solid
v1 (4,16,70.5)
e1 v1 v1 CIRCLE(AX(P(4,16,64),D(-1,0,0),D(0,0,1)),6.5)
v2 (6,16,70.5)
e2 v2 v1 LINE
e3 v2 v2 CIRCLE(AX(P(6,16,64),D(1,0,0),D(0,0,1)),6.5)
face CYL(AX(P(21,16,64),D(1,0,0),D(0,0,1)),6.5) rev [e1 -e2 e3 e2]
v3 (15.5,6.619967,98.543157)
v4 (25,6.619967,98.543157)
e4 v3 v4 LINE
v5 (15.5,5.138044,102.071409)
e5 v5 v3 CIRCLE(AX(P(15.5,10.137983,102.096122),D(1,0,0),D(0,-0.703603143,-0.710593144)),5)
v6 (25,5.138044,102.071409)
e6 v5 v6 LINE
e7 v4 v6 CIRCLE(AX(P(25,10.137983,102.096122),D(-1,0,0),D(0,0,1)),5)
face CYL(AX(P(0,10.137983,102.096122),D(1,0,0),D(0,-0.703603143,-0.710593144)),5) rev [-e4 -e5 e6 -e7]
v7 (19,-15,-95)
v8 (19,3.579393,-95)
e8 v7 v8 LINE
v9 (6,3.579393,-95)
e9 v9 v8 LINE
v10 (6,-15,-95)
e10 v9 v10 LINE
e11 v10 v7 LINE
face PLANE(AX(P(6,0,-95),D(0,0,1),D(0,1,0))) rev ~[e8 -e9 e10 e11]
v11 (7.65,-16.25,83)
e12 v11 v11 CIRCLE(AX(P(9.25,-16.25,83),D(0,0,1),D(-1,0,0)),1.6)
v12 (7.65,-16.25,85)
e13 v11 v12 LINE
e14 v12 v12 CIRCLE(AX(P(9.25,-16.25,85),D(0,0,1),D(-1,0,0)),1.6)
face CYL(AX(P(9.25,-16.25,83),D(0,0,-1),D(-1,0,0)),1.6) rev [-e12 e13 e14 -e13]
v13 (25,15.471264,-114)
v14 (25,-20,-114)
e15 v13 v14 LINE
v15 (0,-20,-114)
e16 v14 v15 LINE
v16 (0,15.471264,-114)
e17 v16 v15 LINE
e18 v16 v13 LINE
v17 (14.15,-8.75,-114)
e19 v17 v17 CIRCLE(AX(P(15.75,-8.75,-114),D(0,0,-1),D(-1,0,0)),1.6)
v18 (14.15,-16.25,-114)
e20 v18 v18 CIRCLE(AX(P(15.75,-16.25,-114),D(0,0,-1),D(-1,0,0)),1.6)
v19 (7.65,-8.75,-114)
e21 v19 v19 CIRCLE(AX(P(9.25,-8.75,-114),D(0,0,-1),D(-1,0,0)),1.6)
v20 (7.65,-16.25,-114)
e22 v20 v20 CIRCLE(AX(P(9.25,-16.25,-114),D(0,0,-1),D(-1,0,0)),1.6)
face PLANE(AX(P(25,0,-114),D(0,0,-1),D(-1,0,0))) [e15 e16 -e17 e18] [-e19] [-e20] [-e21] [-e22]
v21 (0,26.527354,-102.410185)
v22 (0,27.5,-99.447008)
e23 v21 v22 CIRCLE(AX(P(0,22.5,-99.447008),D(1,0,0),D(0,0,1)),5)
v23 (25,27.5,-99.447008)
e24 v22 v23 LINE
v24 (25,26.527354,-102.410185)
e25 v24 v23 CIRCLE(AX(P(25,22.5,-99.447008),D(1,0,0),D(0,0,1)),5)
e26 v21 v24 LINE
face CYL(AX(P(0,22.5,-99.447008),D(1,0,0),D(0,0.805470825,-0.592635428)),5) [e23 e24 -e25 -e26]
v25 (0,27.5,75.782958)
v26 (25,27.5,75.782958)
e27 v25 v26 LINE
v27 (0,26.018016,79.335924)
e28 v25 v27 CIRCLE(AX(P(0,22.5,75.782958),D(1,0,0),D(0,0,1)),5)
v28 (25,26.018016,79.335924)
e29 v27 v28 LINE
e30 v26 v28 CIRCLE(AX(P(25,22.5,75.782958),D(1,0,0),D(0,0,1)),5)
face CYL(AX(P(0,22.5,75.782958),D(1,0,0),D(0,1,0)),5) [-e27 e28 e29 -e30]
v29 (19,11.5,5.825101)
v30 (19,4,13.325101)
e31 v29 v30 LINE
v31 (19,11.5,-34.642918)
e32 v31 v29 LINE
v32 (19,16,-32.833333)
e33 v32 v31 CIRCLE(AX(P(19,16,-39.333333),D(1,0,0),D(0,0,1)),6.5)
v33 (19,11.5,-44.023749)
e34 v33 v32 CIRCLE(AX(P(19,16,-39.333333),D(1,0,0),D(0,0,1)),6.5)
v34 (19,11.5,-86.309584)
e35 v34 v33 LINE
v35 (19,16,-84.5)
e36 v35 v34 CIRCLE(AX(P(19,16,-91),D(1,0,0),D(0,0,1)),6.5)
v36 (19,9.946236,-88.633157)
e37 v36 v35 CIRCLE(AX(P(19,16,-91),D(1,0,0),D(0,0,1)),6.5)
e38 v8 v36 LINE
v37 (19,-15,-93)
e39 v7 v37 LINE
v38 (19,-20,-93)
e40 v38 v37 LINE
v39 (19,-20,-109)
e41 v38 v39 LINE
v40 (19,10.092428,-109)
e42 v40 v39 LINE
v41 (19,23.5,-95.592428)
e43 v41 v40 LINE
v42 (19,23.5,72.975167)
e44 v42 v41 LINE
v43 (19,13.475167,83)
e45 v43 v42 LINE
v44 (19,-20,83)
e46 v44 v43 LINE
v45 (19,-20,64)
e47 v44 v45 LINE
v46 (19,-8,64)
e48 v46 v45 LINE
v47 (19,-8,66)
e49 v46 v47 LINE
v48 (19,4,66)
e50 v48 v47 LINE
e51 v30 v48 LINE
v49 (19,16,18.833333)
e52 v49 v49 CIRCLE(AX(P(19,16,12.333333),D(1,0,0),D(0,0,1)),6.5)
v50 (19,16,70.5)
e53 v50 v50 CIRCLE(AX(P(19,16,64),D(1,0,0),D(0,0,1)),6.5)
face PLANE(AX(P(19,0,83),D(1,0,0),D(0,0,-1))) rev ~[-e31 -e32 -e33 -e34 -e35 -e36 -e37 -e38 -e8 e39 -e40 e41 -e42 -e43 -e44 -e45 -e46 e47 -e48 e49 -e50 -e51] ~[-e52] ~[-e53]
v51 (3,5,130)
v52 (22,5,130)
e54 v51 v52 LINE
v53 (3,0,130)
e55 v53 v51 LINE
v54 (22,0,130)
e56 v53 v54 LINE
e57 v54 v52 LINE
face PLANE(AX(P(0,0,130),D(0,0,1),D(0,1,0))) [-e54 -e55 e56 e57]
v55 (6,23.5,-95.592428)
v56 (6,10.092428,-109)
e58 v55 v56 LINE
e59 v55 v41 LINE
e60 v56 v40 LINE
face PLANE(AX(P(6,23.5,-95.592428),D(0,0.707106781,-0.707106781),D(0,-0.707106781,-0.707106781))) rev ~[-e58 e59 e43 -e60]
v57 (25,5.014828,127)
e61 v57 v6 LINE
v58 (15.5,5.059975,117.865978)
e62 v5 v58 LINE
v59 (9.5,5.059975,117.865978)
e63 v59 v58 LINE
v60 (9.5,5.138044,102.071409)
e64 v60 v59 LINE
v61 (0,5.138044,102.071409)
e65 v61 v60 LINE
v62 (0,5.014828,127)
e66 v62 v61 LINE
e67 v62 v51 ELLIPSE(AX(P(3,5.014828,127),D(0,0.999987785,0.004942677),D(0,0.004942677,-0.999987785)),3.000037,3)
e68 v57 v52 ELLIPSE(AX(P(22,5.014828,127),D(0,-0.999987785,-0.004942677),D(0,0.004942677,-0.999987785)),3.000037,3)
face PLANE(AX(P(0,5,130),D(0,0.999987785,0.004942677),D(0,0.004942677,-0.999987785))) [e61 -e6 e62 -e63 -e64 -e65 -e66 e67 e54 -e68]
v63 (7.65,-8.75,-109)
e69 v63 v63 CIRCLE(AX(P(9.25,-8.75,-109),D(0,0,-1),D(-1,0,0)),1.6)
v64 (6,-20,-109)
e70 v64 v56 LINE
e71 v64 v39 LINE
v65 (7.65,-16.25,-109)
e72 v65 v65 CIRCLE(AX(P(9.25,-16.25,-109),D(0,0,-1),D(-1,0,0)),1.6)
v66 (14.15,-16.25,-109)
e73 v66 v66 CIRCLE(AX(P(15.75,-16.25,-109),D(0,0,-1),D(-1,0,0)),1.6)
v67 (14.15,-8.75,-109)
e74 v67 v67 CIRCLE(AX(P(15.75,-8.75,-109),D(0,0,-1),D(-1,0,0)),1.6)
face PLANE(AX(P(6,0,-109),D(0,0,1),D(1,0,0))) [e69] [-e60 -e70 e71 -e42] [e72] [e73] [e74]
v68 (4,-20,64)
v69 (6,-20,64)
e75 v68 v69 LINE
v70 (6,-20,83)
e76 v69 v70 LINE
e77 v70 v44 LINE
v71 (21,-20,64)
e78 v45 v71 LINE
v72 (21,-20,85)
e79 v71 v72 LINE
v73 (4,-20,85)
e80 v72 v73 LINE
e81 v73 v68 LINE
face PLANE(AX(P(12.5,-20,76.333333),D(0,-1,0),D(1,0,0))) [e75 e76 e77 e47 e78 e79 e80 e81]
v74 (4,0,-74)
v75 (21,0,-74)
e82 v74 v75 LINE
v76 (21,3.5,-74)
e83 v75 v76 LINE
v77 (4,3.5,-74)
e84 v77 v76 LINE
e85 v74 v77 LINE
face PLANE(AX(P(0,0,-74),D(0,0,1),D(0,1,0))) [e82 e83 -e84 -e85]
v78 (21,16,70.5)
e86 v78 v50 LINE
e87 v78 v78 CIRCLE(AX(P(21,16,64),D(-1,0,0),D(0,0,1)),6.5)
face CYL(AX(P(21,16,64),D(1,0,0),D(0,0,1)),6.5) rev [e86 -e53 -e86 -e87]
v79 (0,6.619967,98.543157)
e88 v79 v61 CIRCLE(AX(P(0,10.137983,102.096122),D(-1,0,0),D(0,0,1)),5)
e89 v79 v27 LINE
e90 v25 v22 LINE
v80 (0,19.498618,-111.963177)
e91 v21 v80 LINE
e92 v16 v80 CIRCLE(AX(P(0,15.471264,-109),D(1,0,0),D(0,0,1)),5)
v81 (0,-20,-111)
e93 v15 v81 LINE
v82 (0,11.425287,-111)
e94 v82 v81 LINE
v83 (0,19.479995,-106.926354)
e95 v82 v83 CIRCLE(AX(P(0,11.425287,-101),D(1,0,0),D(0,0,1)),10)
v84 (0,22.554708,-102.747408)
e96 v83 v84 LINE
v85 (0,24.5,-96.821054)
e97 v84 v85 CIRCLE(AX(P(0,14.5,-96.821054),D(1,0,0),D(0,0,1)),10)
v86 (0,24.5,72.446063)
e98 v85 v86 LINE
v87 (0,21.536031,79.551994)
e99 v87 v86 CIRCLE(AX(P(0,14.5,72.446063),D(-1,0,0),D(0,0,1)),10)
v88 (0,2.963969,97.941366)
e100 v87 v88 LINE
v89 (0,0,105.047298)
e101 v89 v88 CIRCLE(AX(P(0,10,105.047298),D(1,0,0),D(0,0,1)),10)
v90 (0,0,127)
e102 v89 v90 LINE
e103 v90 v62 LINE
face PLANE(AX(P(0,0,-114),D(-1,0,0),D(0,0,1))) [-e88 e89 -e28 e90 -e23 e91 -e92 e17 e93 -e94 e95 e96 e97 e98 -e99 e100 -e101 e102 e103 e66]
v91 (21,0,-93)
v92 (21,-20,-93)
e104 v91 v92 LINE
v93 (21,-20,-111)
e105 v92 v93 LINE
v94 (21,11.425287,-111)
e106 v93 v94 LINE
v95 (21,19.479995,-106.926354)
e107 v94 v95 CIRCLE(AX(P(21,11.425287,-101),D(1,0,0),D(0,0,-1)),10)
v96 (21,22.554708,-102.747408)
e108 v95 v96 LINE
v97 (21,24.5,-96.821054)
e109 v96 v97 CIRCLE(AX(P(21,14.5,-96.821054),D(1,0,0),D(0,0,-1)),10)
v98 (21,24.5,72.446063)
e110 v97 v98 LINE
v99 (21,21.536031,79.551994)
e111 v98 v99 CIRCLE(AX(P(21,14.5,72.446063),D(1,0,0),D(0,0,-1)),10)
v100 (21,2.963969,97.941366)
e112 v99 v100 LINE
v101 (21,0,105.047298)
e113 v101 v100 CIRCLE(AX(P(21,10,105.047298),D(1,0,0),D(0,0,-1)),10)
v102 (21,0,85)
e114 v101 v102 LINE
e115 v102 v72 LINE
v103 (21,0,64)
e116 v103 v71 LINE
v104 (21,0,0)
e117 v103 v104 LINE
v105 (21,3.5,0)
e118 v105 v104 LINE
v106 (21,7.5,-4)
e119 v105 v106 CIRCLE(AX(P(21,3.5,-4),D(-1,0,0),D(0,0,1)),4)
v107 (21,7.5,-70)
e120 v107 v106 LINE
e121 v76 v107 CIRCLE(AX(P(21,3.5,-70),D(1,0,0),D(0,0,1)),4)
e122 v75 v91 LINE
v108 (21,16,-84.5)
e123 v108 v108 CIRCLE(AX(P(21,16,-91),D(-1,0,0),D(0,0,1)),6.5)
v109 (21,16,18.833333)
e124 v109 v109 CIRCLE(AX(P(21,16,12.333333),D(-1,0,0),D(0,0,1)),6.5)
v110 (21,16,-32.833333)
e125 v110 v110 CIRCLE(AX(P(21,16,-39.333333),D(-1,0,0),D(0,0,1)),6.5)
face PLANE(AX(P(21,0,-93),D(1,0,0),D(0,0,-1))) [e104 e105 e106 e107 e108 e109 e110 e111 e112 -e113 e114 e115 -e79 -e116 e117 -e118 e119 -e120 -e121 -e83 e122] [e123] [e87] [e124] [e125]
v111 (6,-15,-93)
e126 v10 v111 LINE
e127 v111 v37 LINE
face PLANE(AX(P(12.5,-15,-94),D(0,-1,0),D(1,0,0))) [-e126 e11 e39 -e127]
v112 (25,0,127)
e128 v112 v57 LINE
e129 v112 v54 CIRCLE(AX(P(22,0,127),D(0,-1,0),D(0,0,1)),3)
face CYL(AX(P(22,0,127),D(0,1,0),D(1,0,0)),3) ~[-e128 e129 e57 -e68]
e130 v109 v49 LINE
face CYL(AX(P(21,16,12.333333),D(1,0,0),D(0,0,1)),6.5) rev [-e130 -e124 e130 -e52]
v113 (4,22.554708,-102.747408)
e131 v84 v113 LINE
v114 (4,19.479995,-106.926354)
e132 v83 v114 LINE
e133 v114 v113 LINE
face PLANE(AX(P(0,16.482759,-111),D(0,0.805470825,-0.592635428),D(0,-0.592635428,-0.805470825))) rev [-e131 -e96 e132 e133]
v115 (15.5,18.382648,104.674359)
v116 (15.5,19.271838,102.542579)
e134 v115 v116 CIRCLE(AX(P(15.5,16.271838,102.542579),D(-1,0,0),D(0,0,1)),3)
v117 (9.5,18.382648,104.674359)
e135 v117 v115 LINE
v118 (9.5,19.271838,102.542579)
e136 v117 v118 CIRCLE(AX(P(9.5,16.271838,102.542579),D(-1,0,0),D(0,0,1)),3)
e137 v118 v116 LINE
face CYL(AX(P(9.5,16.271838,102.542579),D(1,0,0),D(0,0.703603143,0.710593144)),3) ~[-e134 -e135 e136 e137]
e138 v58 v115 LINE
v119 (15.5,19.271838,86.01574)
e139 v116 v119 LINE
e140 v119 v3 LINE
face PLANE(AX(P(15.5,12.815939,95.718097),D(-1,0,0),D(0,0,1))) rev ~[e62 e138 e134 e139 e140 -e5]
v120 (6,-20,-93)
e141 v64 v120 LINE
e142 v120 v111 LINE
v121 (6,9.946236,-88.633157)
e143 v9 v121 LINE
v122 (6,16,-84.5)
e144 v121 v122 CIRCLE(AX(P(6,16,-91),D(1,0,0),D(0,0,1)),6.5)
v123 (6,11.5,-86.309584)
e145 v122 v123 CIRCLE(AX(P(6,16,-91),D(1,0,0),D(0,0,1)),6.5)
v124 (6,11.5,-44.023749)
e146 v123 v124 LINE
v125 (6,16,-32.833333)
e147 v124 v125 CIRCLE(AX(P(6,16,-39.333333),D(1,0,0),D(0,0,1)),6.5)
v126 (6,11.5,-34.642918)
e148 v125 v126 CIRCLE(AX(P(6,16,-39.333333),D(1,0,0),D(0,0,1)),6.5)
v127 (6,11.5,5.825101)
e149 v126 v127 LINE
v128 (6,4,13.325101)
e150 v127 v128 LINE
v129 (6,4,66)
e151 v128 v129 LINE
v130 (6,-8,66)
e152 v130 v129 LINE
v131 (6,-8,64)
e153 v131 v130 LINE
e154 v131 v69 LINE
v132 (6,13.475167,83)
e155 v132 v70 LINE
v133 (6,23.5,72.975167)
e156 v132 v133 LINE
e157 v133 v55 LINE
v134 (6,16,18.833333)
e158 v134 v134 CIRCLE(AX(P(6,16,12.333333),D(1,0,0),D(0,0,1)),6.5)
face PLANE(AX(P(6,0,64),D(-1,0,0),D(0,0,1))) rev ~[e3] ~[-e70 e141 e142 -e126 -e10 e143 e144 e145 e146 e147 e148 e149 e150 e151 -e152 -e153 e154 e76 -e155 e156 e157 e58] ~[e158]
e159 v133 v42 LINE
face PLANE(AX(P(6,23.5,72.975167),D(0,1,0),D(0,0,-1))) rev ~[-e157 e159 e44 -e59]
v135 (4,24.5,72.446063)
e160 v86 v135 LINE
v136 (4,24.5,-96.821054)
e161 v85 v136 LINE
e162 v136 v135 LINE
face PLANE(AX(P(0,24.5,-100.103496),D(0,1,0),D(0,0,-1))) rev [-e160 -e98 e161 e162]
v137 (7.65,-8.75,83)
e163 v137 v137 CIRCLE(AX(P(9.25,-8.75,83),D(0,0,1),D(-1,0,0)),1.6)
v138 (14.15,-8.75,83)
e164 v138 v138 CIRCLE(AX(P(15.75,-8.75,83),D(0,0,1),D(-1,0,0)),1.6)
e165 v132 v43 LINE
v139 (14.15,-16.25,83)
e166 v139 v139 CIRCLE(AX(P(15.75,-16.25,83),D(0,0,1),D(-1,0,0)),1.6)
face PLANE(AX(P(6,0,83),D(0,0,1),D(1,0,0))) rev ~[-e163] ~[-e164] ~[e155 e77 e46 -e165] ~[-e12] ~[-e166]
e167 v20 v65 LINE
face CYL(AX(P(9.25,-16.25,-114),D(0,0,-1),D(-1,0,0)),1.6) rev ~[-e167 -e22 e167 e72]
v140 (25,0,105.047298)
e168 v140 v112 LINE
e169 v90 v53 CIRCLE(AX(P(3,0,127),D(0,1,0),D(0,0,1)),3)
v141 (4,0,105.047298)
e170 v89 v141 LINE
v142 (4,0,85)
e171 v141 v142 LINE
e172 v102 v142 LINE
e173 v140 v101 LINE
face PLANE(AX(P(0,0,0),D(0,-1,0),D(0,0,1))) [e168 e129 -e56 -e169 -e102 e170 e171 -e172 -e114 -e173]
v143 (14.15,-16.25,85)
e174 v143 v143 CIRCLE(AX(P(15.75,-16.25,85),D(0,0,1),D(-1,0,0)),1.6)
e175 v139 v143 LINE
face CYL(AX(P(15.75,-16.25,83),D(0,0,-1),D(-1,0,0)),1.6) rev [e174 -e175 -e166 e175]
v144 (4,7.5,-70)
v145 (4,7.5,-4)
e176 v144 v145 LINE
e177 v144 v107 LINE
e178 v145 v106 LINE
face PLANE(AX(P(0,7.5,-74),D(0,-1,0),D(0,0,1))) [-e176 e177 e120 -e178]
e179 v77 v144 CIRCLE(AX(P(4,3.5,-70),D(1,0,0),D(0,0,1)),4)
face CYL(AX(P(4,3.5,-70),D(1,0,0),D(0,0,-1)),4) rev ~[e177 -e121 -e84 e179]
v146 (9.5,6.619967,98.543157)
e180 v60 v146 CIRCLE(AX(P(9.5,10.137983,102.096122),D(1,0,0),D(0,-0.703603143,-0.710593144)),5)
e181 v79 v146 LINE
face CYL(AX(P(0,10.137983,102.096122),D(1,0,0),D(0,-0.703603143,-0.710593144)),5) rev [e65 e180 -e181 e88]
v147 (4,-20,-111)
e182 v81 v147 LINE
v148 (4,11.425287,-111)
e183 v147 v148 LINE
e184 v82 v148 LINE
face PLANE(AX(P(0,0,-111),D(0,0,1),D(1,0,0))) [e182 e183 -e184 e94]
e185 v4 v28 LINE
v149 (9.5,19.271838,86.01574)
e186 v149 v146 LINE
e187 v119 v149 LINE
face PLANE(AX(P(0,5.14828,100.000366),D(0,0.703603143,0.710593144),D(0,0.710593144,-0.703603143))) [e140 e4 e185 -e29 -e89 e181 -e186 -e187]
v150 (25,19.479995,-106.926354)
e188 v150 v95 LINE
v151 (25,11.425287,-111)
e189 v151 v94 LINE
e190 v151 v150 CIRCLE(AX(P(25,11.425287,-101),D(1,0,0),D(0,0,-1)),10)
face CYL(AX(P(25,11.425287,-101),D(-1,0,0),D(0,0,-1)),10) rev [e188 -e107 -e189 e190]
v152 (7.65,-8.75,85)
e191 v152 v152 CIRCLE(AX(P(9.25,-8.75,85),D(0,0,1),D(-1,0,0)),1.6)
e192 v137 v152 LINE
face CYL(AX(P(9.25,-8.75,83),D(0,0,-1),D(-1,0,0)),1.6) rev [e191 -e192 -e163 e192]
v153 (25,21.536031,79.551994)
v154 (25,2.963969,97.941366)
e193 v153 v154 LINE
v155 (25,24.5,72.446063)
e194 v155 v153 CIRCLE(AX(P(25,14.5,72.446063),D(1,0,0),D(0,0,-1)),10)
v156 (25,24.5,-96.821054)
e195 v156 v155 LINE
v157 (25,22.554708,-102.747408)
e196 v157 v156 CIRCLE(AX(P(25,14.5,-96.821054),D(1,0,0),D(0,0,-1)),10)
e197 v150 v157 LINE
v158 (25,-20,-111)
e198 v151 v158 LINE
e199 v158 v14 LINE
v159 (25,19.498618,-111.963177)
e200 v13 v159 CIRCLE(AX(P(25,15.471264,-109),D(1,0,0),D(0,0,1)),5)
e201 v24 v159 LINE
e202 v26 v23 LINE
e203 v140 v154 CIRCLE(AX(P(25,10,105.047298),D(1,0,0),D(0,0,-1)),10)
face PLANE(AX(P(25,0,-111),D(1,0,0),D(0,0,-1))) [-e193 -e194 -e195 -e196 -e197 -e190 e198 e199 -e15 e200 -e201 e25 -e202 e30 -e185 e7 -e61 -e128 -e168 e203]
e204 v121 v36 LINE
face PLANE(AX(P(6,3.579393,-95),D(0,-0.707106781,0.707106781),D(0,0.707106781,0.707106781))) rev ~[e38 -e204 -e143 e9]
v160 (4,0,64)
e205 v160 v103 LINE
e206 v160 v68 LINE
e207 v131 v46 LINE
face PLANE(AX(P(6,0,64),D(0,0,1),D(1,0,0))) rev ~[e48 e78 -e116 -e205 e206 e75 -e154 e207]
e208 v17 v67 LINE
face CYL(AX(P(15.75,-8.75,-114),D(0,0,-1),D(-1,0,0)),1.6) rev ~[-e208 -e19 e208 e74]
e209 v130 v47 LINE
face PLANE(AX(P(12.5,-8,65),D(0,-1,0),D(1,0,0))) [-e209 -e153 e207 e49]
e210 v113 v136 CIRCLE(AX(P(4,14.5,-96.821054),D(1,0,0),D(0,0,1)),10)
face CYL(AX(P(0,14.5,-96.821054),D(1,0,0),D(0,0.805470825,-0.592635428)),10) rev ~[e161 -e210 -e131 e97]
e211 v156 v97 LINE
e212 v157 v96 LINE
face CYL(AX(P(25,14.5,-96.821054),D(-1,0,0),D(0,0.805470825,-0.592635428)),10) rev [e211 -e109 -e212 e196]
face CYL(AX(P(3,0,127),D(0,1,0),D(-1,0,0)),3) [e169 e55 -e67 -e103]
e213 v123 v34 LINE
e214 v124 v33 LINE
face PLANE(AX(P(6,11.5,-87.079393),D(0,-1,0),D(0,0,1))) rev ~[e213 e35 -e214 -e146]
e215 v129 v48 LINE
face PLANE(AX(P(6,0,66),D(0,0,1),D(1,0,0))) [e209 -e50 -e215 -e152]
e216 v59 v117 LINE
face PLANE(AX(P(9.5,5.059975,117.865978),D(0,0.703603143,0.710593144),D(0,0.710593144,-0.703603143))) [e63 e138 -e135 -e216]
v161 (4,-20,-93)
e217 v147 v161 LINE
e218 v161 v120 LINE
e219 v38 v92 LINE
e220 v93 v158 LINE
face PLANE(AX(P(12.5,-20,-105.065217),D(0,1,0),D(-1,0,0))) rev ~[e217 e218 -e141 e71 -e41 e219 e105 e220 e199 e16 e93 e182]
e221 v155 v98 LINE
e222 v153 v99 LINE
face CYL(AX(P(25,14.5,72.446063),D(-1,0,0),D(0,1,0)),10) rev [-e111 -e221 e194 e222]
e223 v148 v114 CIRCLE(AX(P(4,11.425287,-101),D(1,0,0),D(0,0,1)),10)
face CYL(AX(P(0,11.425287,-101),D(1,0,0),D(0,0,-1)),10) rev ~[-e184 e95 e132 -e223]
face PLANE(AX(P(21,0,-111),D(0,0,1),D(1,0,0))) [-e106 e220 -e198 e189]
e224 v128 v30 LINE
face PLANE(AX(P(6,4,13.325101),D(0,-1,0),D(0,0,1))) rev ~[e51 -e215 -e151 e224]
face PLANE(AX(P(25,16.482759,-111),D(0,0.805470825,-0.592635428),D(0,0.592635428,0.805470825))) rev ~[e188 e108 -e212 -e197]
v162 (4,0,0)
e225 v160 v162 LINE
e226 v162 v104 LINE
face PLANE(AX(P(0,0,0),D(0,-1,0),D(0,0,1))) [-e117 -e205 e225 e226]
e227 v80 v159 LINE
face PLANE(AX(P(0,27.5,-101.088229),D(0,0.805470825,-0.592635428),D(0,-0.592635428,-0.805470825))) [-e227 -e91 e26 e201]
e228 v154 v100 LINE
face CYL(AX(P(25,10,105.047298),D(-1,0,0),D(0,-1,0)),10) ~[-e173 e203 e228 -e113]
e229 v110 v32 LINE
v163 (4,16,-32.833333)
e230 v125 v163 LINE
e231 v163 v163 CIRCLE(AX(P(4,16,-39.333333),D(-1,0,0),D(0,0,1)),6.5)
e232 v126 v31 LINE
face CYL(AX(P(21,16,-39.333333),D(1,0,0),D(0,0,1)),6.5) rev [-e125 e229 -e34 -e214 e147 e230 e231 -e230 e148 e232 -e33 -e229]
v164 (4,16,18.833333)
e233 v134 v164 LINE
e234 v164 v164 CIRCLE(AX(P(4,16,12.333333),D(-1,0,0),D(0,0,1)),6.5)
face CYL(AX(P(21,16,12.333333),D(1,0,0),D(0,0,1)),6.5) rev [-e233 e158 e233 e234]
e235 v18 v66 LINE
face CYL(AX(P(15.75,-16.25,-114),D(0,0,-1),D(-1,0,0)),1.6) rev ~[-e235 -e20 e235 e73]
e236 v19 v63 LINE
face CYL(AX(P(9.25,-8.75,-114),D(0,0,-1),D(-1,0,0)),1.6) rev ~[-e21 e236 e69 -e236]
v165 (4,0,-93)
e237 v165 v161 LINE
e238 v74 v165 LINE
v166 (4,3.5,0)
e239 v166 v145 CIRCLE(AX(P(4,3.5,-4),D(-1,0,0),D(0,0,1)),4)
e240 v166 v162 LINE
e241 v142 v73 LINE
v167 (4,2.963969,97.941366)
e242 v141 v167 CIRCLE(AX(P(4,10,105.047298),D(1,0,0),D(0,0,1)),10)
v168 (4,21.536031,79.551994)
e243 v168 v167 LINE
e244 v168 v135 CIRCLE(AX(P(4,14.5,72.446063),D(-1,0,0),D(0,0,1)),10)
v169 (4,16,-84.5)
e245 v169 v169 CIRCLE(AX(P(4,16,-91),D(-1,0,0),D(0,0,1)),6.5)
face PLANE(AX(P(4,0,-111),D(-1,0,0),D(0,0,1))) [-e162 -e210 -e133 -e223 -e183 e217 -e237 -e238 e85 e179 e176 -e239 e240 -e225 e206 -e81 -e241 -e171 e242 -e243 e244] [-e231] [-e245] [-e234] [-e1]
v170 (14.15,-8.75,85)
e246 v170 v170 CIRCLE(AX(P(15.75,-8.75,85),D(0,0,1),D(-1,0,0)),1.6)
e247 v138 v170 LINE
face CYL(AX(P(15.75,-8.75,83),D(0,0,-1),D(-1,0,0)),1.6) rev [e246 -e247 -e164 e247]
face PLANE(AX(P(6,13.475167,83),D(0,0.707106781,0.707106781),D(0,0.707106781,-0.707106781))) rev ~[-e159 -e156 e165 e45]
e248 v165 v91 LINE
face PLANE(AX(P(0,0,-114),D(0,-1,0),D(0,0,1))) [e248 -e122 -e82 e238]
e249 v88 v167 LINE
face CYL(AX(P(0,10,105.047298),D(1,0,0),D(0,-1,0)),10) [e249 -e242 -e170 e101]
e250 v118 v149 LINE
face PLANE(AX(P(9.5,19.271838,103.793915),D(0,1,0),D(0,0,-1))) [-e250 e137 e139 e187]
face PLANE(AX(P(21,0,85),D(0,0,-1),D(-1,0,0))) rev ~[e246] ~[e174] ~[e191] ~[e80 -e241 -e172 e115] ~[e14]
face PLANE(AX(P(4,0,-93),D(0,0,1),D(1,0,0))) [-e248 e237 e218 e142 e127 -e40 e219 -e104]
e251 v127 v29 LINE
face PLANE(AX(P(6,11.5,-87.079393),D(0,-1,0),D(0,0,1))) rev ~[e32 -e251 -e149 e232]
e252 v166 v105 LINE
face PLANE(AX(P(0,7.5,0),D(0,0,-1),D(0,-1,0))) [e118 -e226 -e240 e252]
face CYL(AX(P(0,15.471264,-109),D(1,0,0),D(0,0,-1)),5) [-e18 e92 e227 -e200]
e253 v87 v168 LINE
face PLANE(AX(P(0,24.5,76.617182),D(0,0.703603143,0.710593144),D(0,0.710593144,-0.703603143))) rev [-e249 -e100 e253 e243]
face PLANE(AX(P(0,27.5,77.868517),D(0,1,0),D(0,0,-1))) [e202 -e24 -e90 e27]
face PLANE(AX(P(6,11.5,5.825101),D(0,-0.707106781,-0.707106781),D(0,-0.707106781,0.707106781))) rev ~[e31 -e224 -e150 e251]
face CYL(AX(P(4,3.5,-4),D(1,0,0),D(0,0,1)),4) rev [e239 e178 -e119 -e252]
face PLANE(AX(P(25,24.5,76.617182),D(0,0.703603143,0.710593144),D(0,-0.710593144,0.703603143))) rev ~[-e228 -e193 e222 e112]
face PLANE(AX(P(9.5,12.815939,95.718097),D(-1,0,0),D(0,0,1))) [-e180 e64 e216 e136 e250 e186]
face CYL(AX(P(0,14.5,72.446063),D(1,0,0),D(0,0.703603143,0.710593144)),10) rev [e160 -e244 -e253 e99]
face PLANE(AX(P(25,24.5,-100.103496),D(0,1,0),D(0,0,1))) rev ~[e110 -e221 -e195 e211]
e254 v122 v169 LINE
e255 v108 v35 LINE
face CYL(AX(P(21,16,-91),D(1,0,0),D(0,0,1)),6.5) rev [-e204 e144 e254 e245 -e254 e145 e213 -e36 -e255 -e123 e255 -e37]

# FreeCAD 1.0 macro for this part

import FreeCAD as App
import Part
import Sketcher

V = App.Vector
Q = App.Units.Quantity


def edges_at(feature, points):
    """Names of the edges that pass closest to the given points."""
    edges = feature.Shape.Edges
    near = lambda p: min(range(len(edges)), key=lambda i: edges[i].distToShape(Part.Vertex(*p))[0])
    return sorted({f"Edge{near(p) + 1}" for p in points})


def add_polygon(sketch, points):
    """Adds a closed chain of lines whose ends are joined by coincident constraints."""
    first, n = sketch.GeometryCount, len(points)
    for a, b in zip(points, points[1:] + points[:1]):
        sketch.addGeometry(Part.LineSegment(App.Vector(*a, 0), App.Vector(*b, 0)), False)
    for i in range(n):
        sketch.addConstraint(Sketcher.Constraint("Coincident", first + i, 2, first + (i + 1) % n, 1))

doc = App.newDocument("Part")
params = doc.addObject("Spreadsheet::Sheet", "Params")
for row, (alias, value) in enumerate([
    ("sketch1_width", "18 mm"),
    ("sketch1_width2", "5 mm"),
    ("sketch1_height", "130 mm"),
    ("sketch1_height2", "74 mm"),
    ("sketch1_height3", "40 mm"),
    ("pad1_length", "25 mm"),
    ("pocket1_length", "4 mm"),
    ("fillet_radius", "4 mm"),
    ("fillet2_radius", "10 mm"),
    ("fillet3_radius", "5 mm"),
    ("fillet4_radius", "3 mm"),
    ("sketch3_height", "22 mm"),
    ("sketch3_length", "20 mm"),
    ("pad2_length", "3 mm"),
    ("pad2_length2", "3 mm"),
    ("fillet5_radius", "3 mm"),
    ("sketch4_width", "4 mm"),
    ("sketch4_width2", "25 mm"),
    ("sketch4_width3", "13 mm"),
    ("sketch4_height", "3 mm"),
    ("sketch4_height2", "18 mm"),
    ("pad3_length", "20 mm"),
    ("sketch5_width", "17 mm"),
    ("sketch5_width2", "2 mm"),
    ("sketch5_height", "21 mm"),
    ("sketch5_height2", "19 mm"),
    ("pad4_length", "20 mm"),
    ("sketch6_width", "13 mm"),
    ("sketch6_height", "2 mm"),
    ("pad5_length", "8 mm"),
    ("sketch7_width", "13 mm"),
    ("sketch7_height", "2 mm"),
    ("pocket2_length", "5 mm"),
    ("sketch8_diameter", "3.2 mm"),
    ("pocket3_length", "19 mm"),
    ("sketch9_diameter", "3.2 mm"),
    ("pocket4_length", "2 mm"),
    ("sketch10_width", "4 mm"),
    ("sketch10_height", "17 mm"),
    ("sketch10_height2", "14 mm"),
    ("pocket5_length", "6.5 mm"),
    ("pocket5_length2", "6.5 mm"),
    ("sketch11_diameter", "13 mm"),
    ("pocket6_length", "17 mm"),
], start=1):
    params.set(f"A{row}", alias)
    params.set(f"B{row}", "=" + value)
    params.setAlias(f"B{row}", alias)

body = doc.addObject("PartDesign::Body", "Body")

sketch1 = body.newObject("Sketcher::SketchObject", "Sketch")
sketch1.AttachmentSupport = (doc.getObject("YZ_Plane"), [""])
sketch1.MapMode = "FlatFace"
add_polygon(sketch1, [(0, 130), (0, 0), (8, 0), (8, -74), (0, -74), (0, -114), (18, -114), (28, -101), (28, 78), (5, 100), (5, 130)])
sketch1.addConstraint(Sketcher.Constraint("Vertical", 0))
sketch1.addConstraint(Sketcher.Constraint("Horizontal", 1))
sketch1.addConstraint(Sketcher.Constraint("Vertical", 2))
sketch1.addConstraint(Sketcher.Constraint("Horizontal", 3))
sketch1.addConstraint(Sketcher.Constraint("Vertical", 4))
sketch1.addConstraint(Sketcher.Constraint("Horizontal", 5))
sketch1.addConstraint(Sketcher.Constraint("Vertical", 7))
sketch1.addConstraint(Sketcher.Constraint("Horizontal", 10))
sketch1.addConstraint(Sketcher.Constraint("Coincident", 0, 2, -1, 1))
sketch1.addConstraint(Sketcher.Constraint("PointOnObject", 3, 2, -2))
sketch1.addConstraint(Sketcher.Constraint("DistanceX", 5, 1, 5, 2, Q("18 mm")))
sketch1.addConstraint(Sketcher.Constraint("DistanceX", 10, 2, 10, 1, Q("5 mm")))
sketch1.addConstraint(Sketcher.Constraint("DistanceY", 0, 2, 0, 1, Q("130 mm")))
sketch1.addConstraint(Sketcher.Constraint("DistanceY", 2, 2, 2, 1, Q("74 mm")))
sketch1.addConstraint(Sketcher.Constraint("DistanceY", 4, 2, 4, 1, Q("40 mm")))
sketch1.addConstraint(Sketcher.Constraint("Distance", 9, Q("30 mm")))
sketch1.addConstraint(Sketcher.Constraint("DistanceX", 1, 1, 1, 2, Q("7.5 mm")))
sketch1.addConstraint(Sketcher.Constraint("DistanceX", 2, 2, 6, 2, Q("20 mm")))
sketch1.addConstraint(Sketcher.Constraint("Distance", 6, Q("16.030091 mm")))
sketch1.addConstraint(Sketcher.Constraint("DistanceY", 7, 1, 7, 2, Q("178.956747 mm")))
sketch1.addConstraint(Sketcher.Constraint("DistanceX", -1, 1, 8, 2, Q("5.14828 mm")))
sketch1.setExpression("Constraints[21]", "Params.sketch1_width")
sketch1.setExpression("Constraints[22]", "Params.sketch1_width2")
sketch1.setExpression("Constraints[23]", "Params.sketch1_height")
sketch1.setExpression("Constraints[24]", "Params.sketch1_height2")
sketch1.setExpression("Constraints[25]", "Params.sketch1_height3")
pad1 = body.newObject("PartDesign::Pad", "Pad")
pad1.Profile = sketch1
pad1.setExpression("Length", "Params.pad1_length")

sketch2 = body.newObject("Sketcher::SketchObject", "Sketch001")
sketch2.AttachmentSupport = (doc.getObject("YZ_Plane"), [""])
sketch2.MapMode = "FlatFace"
sketch2.AttachmentOffset = App.Placement(V(0, 0, 25), App.Rotation())
add_polygon(sketch2, [(0, 101), (0, -111), (16, -111), (24, -100), (24, 77)])
sketch2.addConstraint(Sketcher.Constraint("Vertical", 0))
sketch2.addConstraint(Sketcher.Constraint("Horizontal", 1))
sketch2.addConstraint(Sketcher.Constraint("Vertical", 3))
sketch2.addConstraint(Sketcher.Constraint("PointOnObject", 0, 2, -2))
sketch2.addConstraint(Sketcher.Constraint("DistanceY", 0, 2, -1, 1, Q("111 mm")))
sketch2.addConstraint(Sketcher.Constraint("DistanceX", -1, 1, 2, 2, Q("24.5 mm")))
sketch2.addConstraint(Sketcher.Constraint("DistanceX", 1, 1, 1, 2, Q("16.482759 mm")))
sketch2.addConstraint(Sketcher.Constraint("DistanceY", 0, 2, 0, 1, Q("211.876179 mm")))
sketch2.addConstraint(Sketcher.Constraint("DistanceY", 3, 1, 3, 2, Q("176.720678 mm")))
sketch2.addConstraint(Sketcher.Constraint("Distance", 4, Q("34.478239 mm")))
pocket1 = body.newObject("PartDesign::Pocket", "Pocket")
pocket1.Profile = sketch2
pocket1.setExpression("Length", "Params.pocket1_length")
doc.recompute()

datumplane = body.newObject("PartDesign::Plane", "DatumPlane")
datumplane.AttachmentSupport = (doc.getObject("YZ_Plane"), [""])
datumplane.MapMode = "FlatFace"
datumplane.AttachmentOffset = App.Placement(V(0, 0, 12.5), App.Rotation())
mirrored = body.newObject("PartDesign::Mirrored", "Mirrored")
mirrored.Originals = [pocket1]
mirrored.MirrorPlane = (datumplane, [""])
body.Tip = mirrored
doc.recompute()

fillet = body.newObject("PartDesign::Fillet", "Fillet")
fillet.Base = (mirrored, edges_at(mirrored, [(12.5, 7.5, -74), (12.5, 7.5, 0)]))
fillet.setExpression("Radius", "Params.fillet_radius")
doc.recompute()

fillet2 = body.newObject("PartDesign::Fillet", "Fillet001")
fillet2.Base = (fillet, edges_at(fillet, [
    (23, 0, 100.876),
    (23, 24.5, 76.617),
    (23, 24.5, -100.103),
    (23, 16.483, -111),
    (2, 0, 100.876),
    (2, 16.483, -111),
    (2, 24.5, -100.103),
    (2, 24.5, 76.617),
]))
fillet2.setExpression("Radius", "Params.fillet2_radius")
doc.recompute()

fillet3 = body.newObject("PartDesign::Fillet", "Fillet002")
fillet3.Base = (fillet2, edges_at(fillet2, [
    (12.5, 5.148, 100),
    (12.5, 27.5, 77.869),
    (12.5, 27.5, -101.088),
    (12.5, 18, -114),
]))
fillet3.setExpression("Radius", "Params.fillet3_radius")
doc.recompute()

fillet4 = body.newObject("PartDesign::Fillet", "Fillet003")
fillet4.Base = (fillet3, edges_at(fillet3, [(0, 2.5, 130), (25, 2.5, 130)]))
fillet4.setExpression("Radius", "Params.fillet4_radius")

sketch3 = body.newObject("Sketcher::SketchObject", "Sketch002")
sketch3.AttachmentSupport = (doc.getObject("YZ_Plane"), [""])
sketch3.MapMode = "FlatFace"
sketch3.AttachmentOffset = App.Placement(V(0, 0, 12.5), App.Rotation())
add_polygon(sketch3, [(19, 104), (5, 118), (5, 96), (19, 73)])
sketch3.addConstraint(Sketcher.Constraint("Vertical", 1))
sketch3.addConstraint(Sketcher.Constraint("Vertical", 3))
sketch3.addConstraint(Sketcher.Constraint("DistanceY", 1, 2, 1, 1, Q("22 mm")))
sketch3.addConstraint(Sketcher.Constraint("Distance", 0, Q("20 mm")))
sketch3.addConstraint(Sketcher.Constraint("DistanceY", 3, 1, 3, 2, Q("31.188665 mm")))
sketch3.addConstraint(Sketcher.Constraint("DistanceX", -1, 1, 2, 2, Q("19.271838 mm")))
sketch3.addConstraint(Sketcher.Constraint("DistanceY", -1, 1, 2, 2, Q("72.60525 mm")))
sketch3.addConstraint(Sketcher.Constraint("Distance", 2, Q("27.258732 mm")))
sketch3.setExpression("Constraints[6]", "Params.sketch3_height")
sketch3.setExpression("Constraints[7]", "Params.sketch3_length")
pad2 = body.newObject("PartDesign::Pad", "Pad001")
pad2.Profile = sketch3
pad2.Type = "TwoLengths"
pad2.setExpression("Length", "Params.pad2_length")
pad2.setExpression("Length2", "Params.pad2_length2")
doc.recompute()

fillet5 = body.newObject("PartDesign::Fillet", "Fillet004")
fillet5.Base = (pad2, edges_at(pad2, [(12.5, 19.272, 103.794)]))
fillet5.setExpression("Radius", "Params.fillet5_radius")

sketch4 = body.newObject("Sketcher::SketchObject", "Sketch003")
sketch4.AttachmentSupport = (doc.getObject("XZ_Plane"), [""])
sketch4.MapMode = "FlatFace"
add_polygon(sketch4, [(4, -111), (0, -111), (0, -114), (25, -114), (25, -111), (21, -111), (21, -93), (4, -93)])
add_polygon(sketch4, [(6, -109), (6, -95), (19, -95), (19, -109)])
sketch4.addConstraint(Sketcher.Constraint("Horizontal", 0))
sketch4.addConstraint(Sketcher.Constraint("Vertical", 1))
sketch4.addConstraint(Sketcher.Constraint("Horizontal", 2))
sketch4.addConstraint(Sketcher.Constraint("Vertical", 3))
sketch4.addConstraint(Sketcher.Constraint("Horizontal", 4))
sketch4.addConstraint(Sketcher.Constraint("Vertical", 5))
sketch4.addConstraint(Sketcher.Constraint("Horizontal", 6))
sketch4.addConstraint(Sketcher.Constraint("Vertical", 7))
sketch4.addConstraint(Sketcher.Constraint("Vertical", 8))
sketch4.addConstraint(Sketcher.Constraint("Horizontal", 9))
sketch4.addConstraint(Sketcher.Constraint("Vertical", 10))
sketch4.addConstraint(Sketcher.Constraint("Horizontal", 11))
sketch4.addConstraint(Sketcher.Constraint("PointOnObject", 0, 2, -2))
sketch4.addConstraint(Sketcher.Constraint("Horizontal", 0, 2, 3, 2))
sketch4.addConstraint(Sketcher.Constraint("Equal", 0, 4))
sketch4.addConstraint(Sketcher.Constraint("DistanceX", 0, 2, 0, 1, Q("4 mm")))
sketch4.addConstraint(Sketcher.Constraint("DistanceX", 2, 1, 2, 2, Q("25 mm")))
sketch4.addConstraint(Sketcher.Constraint("DistanceX", 9, 1, 9, 2, Q("13 mm")))
sketch4.addConstraint(Sketcher.Constraint("DistanceY", 1, 2, 1, 1, Q("3 mm")))
sketch4.addConstraint(Sketcher.Constraint("DistanceY", 5, 1, 5, 2, Q("18 mm")))
sketch4.addConstraint(Sketcher.Constraint("DistanceY", 8, 1, 8, 2, Q("14 mm")))
sketch4.addConstraint(Sketcher.Constraint("DistanceY", 0, 2, -1, 1, Q("111 mm")))
sketch4.addConstraint(Sketcher.Constraint("DistanceX", -1, 1, 8, 2, Q("6 mm")))
sketch4.addConstraint(Sketcher.Constraint("DistanceY", 8, 2, -1, 1, Q("95 mm")))
sketch4.setExpression("Constraints[27]", "Params.sketch4_width")
sketch4.setExpression("Constraints[28]", "Params.sketch4_width2")
sketch4.setExpression("Constraints[29]", "Params.sketch4_width3")
sketch4.setExpression("Constraints[30]", "Params.sketch4_height")
sketch4.setExpression("Constraints[31]", "Params.sketch4_height2")
pad3 = body.newObject("PartDesign::Pad", "Pad002")
pad3.Profile = sketch4
pad3.setExpression("Length", "Params.pad3_length")

sketch5 = body.newObject("Sketcher::SketchObject", "Sketch004")
sketch5.AttachmentSupport = (doc.getObject("XZ_Plane"), [""])
sketch5.MapMode = "FlatFace"
add_polygon(sketch5, [(21, 85), (4, 85), (4, 64), (6, 64), (6, 83), (19, 83), (19, 64), (21, 64)])
sketch5.addConstraint(Sketcher.Constraint("Horizontal", 0))
sketch5.addConstraint(Sketcher.Constraint("Vertical", 1))
sketch5.addConstraint(Sketcher.Constraint("Horizontal", 2))
sketch5.addConstraint(Sketcher.Constraint("Vertical", 3))
sketch5.addConstraint(Sketcher.Constraint("Horizontal", 4))
sketch5.addConstraint(Sketcher.Constraint("Vertical", 5))
sketch5.addConstraint(Sketcher.Constraint("Horizontal", 6))
sketch5.addConstraint(Sketcher.Constraint("Vertical", 7))
sketch5.addConstraint(Sketcher.Constraint("Horizontal", 2, 2, 5, 2))
sketch5.addConstraint(Sketcher.Constraint("Equal", 2, 6))
sketch5.addConstraint(Sketcher.Constraint("DistanceX", 0, 2, 0, 1, Q("17 mm")))
sketch5.addConstraint(Sketcher.Constraint("DistanceX", 2, 1, 2, 2, Q("2 mm")))
sketch5.addConstraint(Sketcher.Constraint("DistanceY", 1, 2, 1, 1, Q("21 mm")))
sketch5.addConstraint(Sketcher.Constraint("DistanceY", 3, 1, 3, 2, Q("19 mm")))
sketch5.addConstraint(Sketcher.Constraint("DistanceX", -1, 1, 0, 2, Q("4 mm")))
sketch5.addConstraint(Sketcher.Constraint("DistanceY", -1, 1, 0, 2, Q("85 mm")))
sketch5.setExpression("Constraints[18]", "Params.sketch5_width")
sketch5.setExpression("Constraints[19]", "Params.sketch5_width2")
sketch5.setExpression("Constraints[20]", "Params.sketch5_height")
sketch5.setExpression("Constraints[21]", "Params.sketch5_height2")
pad4 = body.newObject("PartDesign::Pad", "Pad003")
pad4.Profile = sketch5
pad4.setExpression("Length", "Params.pad4_length")

sketch6 = body.newObject("Sketcher::SketchObject", "Sketch005")
sketch6.AttachmentSupport = (doc.getObject("XZ_Plane"), [""])
sketch6.MapMode = "FlatFace"
add_polygon(sketch6, [(6, 66), (6, 64), (19, 64), (19, 66)])
sketch6.addConstraint(Sketcher.Constraint("Vertical", 0))
sketch6.addConstraint(Sketcher.Constraint("Horizontal", 1))
sketch6.addConstraint(Sketcher.Constraint("Vertical", 2))
sketch6.addConstraint(Sketcher.Constraint("Horizontal", 3))
sketch6.addConstraint(Sketcher.Constraint("DistanceX", 1, 1, 1, 2, Q("13 mm")))
sketch6.addConstraint(Sketcher.Constraint("DistanceY", 0, 2, 0, 1, Q("2 mm")))
sketch6.addConstraint(Sketcher.Constraint("DistanceX", -1, 1, 0, 2, Q("6 mm")))
sketch6.addConstraint(Sketcher.Constraint("DistanceY", -1, 1, 0, 2, Q("64 mm")))
sketch6.setExpression("Constraints[8]", "Params.sketch6_width")
sketch6.setExpression("Constraints[9]", "Params.sketch6_height")
pad5 = body.newObject("PartDesign::Pad", "Pad004")
pad5.Profile = sketch6
pad5.setExpression("Length", "Params.pad5_length")

sketch7 = body.newObject("Sketcher::SketchObject", "Sketch006")
sketch7.AttachmentSupport = (doc.getObject("XZ_Plane"), [""])
sketch7.MapMode = "FlatFace"
sketch7.AttachmentOffset = App.Placement(V(0, 0, 20), App.Rotation())
add_polygon(sketch7, [(6, -93), (6, -95), (19, -95), (19, -93)])
sketch7.addConstraint(Sketcher.Constraint("Vertical", 0))
sketch7.addConstraint(Sketcher.Constraint("Horizontal", 1))
sketch7.addConstraint(Sketcher.Constraint("Vertical", 2))
sketch7.addConstraint(Sketcher.Constraint("Horizontal", 3))
sketch7.addConstraint(Sketcher.Constraint("DistanceX", 1, 1, 1, 2, Q("13 mm")))
sketch7.addConstraint(Sketcher.Constraint("DistanceY", 0, 2, 0, 1, Q("2 mm")))
sketch7.addConstraint(Sketcher.Constraint("DistanceX", -1, 1, 0, 2, Q("6 mm")))
sketch7.addConstraint(Sketcher.Constraint("DistanceY", 0, 2, -1, 1, Q("95 mm")))
sketch7.setExpression("Constraints[8]", "Params.sketch7_width")
sketch7.setExpression("Constraints[9]", "Params.sketch7_height")
pocket2 = body.newObject("PartDesign::Pocket", "Pocket001")
pocket2.Profile = sketch7
pocket2.setExpression("Length", "Params.pocket2_length")

sketch8 = body.newObject("Sketcher::SketchObject", "Sketch007")
sketch8.AttachmentSupport = (doc.getObject("XY_Plane"), [""])
sketch8.MapMode = "FlatFace"
sketch8.AttachmentOffset = App.Placement(V(0, 0, -114), App.Rotation())
sketch8.addGeometry(Part.Circle(V(15.8, -16.2, 0), V(0, 0, 1), 1.6), False)
sketch8.addGeometry(Part.Circle(V(15.8, -8.8, 0), V(0, 0, 1), 1.6), False)
sketch8.addGeometry(Part.Circle(V(9.2, -8.8, 0), V(0, 0, 1), 1.6), False)
sketch8.addGeometry(Part.Circle(V(9.2, -16.2, 0), V(0, 0, 1), 1.6), False)
sketch8.addConstraint(Sketcher.Constraint("Equal", 0, 1))
sketch8.addConstraint(Sketcher.Constraint("Equal", 1, 2))
sketch8.addConstraint(Sketcher.Constraint("Equal", 2, 3))
sketch8.addConstraint(Sketcher.Constraint("Horizontal", 1, 3, 2, 3))
sketch8.addConstraint(Sketcher.Constraint("Horizontal", 0, 3, 3, 3))
sketch8.addConstraint(Sketcher.Constraint("Vertical", 0, 3, 1, 3))
sketch8.addConstraint(Sketcher.Constraint("Vertical", 2, 3, 3, 3))
sketch8.addConstraint(Sketcher.Constraint("Diameter", 0, Q("3.2 mm")))
sketch8.addConstraint(Sketcher.Constraint("DistanceY", 0, 3, 1, 3, Q("7.5 mm")))
sketch8.addConstraint(Sketcher.Constraint("DistanceX", 2, 3, 1, 3, Q("6.5 mm")))
sketch8.addConstraint(Sketcher.Constraint("DistanceX", -1, 1, 0, 3, Q("15.75 mm")))
sketch8.addConstraint(Sketcher.Constraint("DistanceY", 0, 3, -1, 1, Q("16.25 mm")))
sketch8.setExpression("Constraints[7]", "Params.sketch8_diameter")
pocket3 = body.newObject("PartDesign::Pocket", "Pocket002")
pocket3.Profile = sketch8
pocket3.setExpression("Length", "Params.pocket3_length")
pocket3.Reversed = True

sketch9 = body.newObject("Sketcher::SketchObject", "Sketch008")
sketch9.AttachmentSupport = (doc.getObject("XY_Plane"), [""])
sketch9.MapMode = "FlatFace"
sketch9.AttachmentOffset = App.Placement(V(0, 0, 83), App.Rotation())
sketch9.addGeometry(Part.Circle(V(15.8, -16.2, 0), V(0, 0, 1), 1.6), False)
sketch9.addGeometry(Part.Circle(V(9.2, -16.2, 0), V(0, 0, 1), 1.6), False)
sketch9.addGeometry(Part.Circle(V(9.2, -8.8, 0), V(0, 0, 1), 1.6), False)
sketch9.addGeometry(Part.Circle(V(15.8, -8.8, 0), V(0, 0, 1), 1.6), False)
sketch9.addConstraint(Sketcher.Constraint("Equal", 0, 1))
sketch9.addConstraint(Sketcher.Constraint("Equal", 1, 2))
sketch9.addConstraint(Sketcher.Constraint("Equal", 2, 3))
sketch9.addConstraint(Sketcher.Constraint("Horizontal", 0, 3, 1, 3))
sketch9.addConstraint(Sketcher.Constraint("Horizontal", 2, 3, 3, 3))
sketch9.addConstraint(Sketcher.Constraint("Vertical", 1, 3, 2, 3))
sketch9.addConstraint(Sketcher.Constraint("Vertical", 0, 3, 3, 3))
sketch9.addConstraint(Sketcher.Constraint("Diameter", 0, Q("3.2 mm")))
sketch9.addConstraint(Sketcher.Constraint("DistanceX", 1, 3, 0, 3, Q("6.5 mm")))
sketch9.addConstraint(Sketcher.Constraint("DistanceY", 1, 3, 2, 3, Q("7.5 mm")))
sketch9.addConstraint(Sketcher.Constraint("DistanceX", -1, 1, 0, 3, Q("15.75 mm")))
sketch9.addConstraint(Sketcher.Constraint("DistanceY", 0, 3, -1, 1, Q("16.25 mm")))
sketch9.setExpression("Constraints[7]", "Params.sketch9_diameter")
pocket4 = body.newObject("PartDesign::Pocket", "Pocket003")
pocket4.Profile = sketch9
pocket4.setExpression("Length", "Params.pocket4_length")
pocket4.Reversed = True

sketch10 = body.newObject("Sketcher::SketchObject", "Sketch009")
sketch10.AttachmentSupport = (doc.getObject("YZ_Plane"), [""])
sketch10.MapMode = "FlatFace"
sketch10.AttachmentOffset = App.Placement(V(0, 0, 12.5), App.Rotation())
add_polygon(sketch10, [(13.5, 83), (0, 83), (0, 66), (4, 66), (4, 13.3), (11.5, 5.8), (11.5, -87.1), (3.6, -95), (0, -95), (0, -109), (10.1, -109), (23.5, -95.6), (23.5, 73)])
sketch10.addConstraint(Sketcher.Constraint("Horizontal", 0))
sketch10.addConstraint(Sketcher.Constraint("Vertical", 1))
sketch10.addConstraint(Sketcher.Constraint("Horizontal", 2))
sketch10.addConstraint(Sketcher.Constraint("Vertical", 3))
sketch10.addConstraint(Sketcher.Constraint("Vertical", 5))
sketch10.addConstraint(Sketcher.Constraint("Horizontal", 7))
sketch10.addConstraint(Sketcher.Constraint("Vertical", 8))
sketch10.addConstraint(Sketcher.Constraint("Horizontal", 9))
sketch10.addConstraint(Sketcher.Constraint("Vertical", 11))
sketch10.addConstraint(Sketcher.Constraint("PointOnObject", 0, 2, -2))
sketch10.addConstraint(Sketcher.Constraint("PointOnObject", 7, 2, -2))
sketch10.addConstraint(Sketcher.Constraint("Perpendicular", 4, 6))
sketch10.addConstraint(Sketcher.Constraint("Parallel", 6, 10))
sketch10.addConstraint(Sketcher.Constraint("Perpendicular", 10, 12))
sketch10.addConstraint(Sketcher.Constraint("DistanceX", 2, 1, 2, 2, Q("4 mm")))
sketch10.addConstraint(Sketcher.Constraint("DistanceY", 1, 2, 1, 1, Q("17 mm")))
sketch10.addConstraint(Sketcher.Constraint("DistanceY", 8, 2, 8, 1, Q("14 mm")))
sketch10.addConstraint(Sketcher.Constraint("Angle", 4, Q("-45 deg")))
sketch10.addConstraint(Sketcher.Constraint("DistanceY", -1, 1, 0, 2, Q("83 mm")))
sketch10.addConstraint(Sketcher.Constraint("DistanceY", 6, 2, -1, 1, Q("95 mm")))
sketch10.addConstraint(Sketcher.Constraint("DistanceX", 5, 2, 10, 2, Q("12 mm")))
sketch10.addConstraint(Sketcher.Constraint("DistanceX", -1, 1, 4, 2, Q("11.5 mm")))
sketch10.addConstraint(Sketcher.Constraint("DistanceY", 3, 2, 3, 1, Q("52.674899 mm")))
sketch10.addConstraint(Sketcher.Constraint("Distance", 6, Q("11.20143 mm")))
sketch10.addConstraint(Sketcher.Constraint("Distance", 10, Q("18.961171 mm")))
sketch10.addConstraint(Sketcher.Constraint("DistanceX", 0, 2, 0, 1, Q("13.475167 mm")))
sketch10.setExpression("Constraints[27]", "Params.sketch10_width")
sketch10.setExpression("Constraints[28]", "Params.sketch10_height")
sketch10.setExpression("Constraints[29]", "Params.sketch10_height2")
pocket5 = body.newObject("PartDesign::Pocket", "Pocket004")
pocket5.Profile = sketch10
pocket5.Type = "TwoLengths"
pocket5.setExpression("Length", "Params.pocket5_length")
pocket5.setExpression("Length2", "Params.pocket5_length2")
pocket5.Reversed = True

sketch11 = body.newObject("Sketcher::SketchObject", "Sketch010")
sketch11.AttachmentSupport = (doc.getObject("YZ_Plane"), [""])
sketch11.MapMode = "FlatFace"
sketch11.AttachmentOffset = App.Placement(V(0, 0, 21), App.Rotation())
sketch11.addGeometry(Part.Circle(V(16, -91, 0), V(0, 0, 1), 6), False)
sketch11.addGeometry(Part.Circle(V(16, -39, 0), V(0, 0, 1), 6), False)
sketch11.addGeometry(Part.Circle(V(16, 64, 0), V(0, 0, 1), 6), False)
sketch11.addGeometry(Part.Circle(V(16, 12, 0), V(0, 0, 1), 6), False)
sketch11.addConstraint(Sketcher.Constraint("Equal", 0, 1))
sketch11.addConstraint(Sketcher.Constraint("Equal", 1, 2))
sketch11.addConstraint(Sketcher.Constraint("Equal", 2, 3))
sketch11.addConstraint(Sketcher.Constraint("Vertical", 0, 3, 1, 3))
sketch11.addConstraint(Sketcher.Constraint("Vertical", 1, 3, 2, 3))
sketch11.addConstraint(Sketcher.Constraint("Vertical", 2, 3, 3, 3))
sketch11.addConstraint(Sketcher.Constraint("Diameter", 0, Q("13 mm")))
sketch11.addConstraint(Sketcher.Constraint("DistanceX", -1, 1, 0, 3, Q("16 mm")))
sketch11.addConstraint(Sketcher.Constraint("DistanceY", 0, 3, -1, 1, Q("91 mm")))
sketch11.addConstraint(Sketcher.Constraint("DistanceY", -1, 1, 2, 3, Q("64 mm")))
sketch11.addConstraint(Sketcher.Constraint("DistanceY", 1, 3, -1, 1, Q("39.333333 mm")))
sketch11.addConstraint(Sketcher.Constraint("DistanceY", -1, 1, 3, 3, Q("12.333333 mm")))
sketch11.setExpression("Constraints[6]", "Params.sketch11_diameter")
pocket6 = body.newObject("PartDesign::Pocket", "Pocket005")
pocket6.Profile = sketch11
pocket6.setExpression("Length", "Params.pocket6_length")

doc.recompute()
